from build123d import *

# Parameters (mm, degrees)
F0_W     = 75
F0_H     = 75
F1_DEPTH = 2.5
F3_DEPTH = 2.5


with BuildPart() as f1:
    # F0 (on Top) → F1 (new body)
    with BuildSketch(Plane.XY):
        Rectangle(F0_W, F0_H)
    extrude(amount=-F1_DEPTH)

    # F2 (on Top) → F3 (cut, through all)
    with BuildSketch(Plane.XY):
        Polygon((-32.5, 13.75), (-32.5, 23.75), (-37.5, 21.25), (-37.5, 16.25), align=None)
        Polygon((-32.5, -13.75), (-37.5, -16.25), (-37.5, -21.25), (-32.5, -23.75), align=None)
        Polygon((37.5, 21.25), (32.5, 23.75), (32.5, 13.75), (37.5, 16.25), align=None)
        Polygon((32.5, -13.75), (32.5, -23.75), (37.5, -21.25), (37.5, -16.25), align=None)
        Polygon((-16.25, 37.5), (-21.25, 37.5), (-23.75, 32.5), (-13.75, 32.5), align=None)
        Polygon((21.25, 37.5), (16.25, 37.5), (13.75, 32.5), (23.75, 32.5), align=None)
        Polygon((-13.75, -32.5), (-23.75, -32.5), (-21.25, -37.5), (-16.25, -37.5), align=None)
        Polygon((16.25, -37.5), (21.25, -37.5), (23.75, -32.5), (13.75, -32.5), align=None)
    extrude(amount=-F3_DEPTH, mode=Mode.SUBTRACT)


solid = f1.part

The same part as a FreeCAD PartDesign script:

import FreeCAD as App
import Part
import Sketcher


def add_polygon(sketch, points):
    """Adds a closed chain of lines whose ends are joined by coincident constraints."""
    first, n = sketch.GeometryCount, len(points)
    for a, b in zip(points, points[1:] + points[:1]):
        sketch.addGeometry(Part.LineSegment(App.Vector(*a, 0), App.Vector(*b, 0)), False)
    for i in range(n):
        sketch.addConstraint(Sketcher.Constraint("Coincident", first + i, 2, first + (i + 1) % n, 1))

doc = App.newDocument("Part")
params = doc.addObject("Spreadsheet::Sheet", "Params")
for row, (alias, value) in enumerate([
    ("sketch1_width", "75 mm"),
    ("pad1_length", "2.5 mm"),
    ("sketch2_width", "5 mm"),
    ("sketch2_width2", "10 mm"),
], start=1):
    params.set(f"A{row}", alias)
    params.set(f"B{row}", "=" + value)
    params.setAlias(f"B{row}", alias)

body = doc.addObject("PartDesign::Body", "Body")

# Sketch on XY plane
sketch1 = doc.addObject("Sketcher::SketchObject", "Sketch")
body.addObject(sketch1)
sketch1.AttachmentSupport = (doc.XY_Plane, [""])
sketch1.MapMode = "FlatFace"
add_polygon(sketch1, [(-38, 38), (-38, -38), (38, -38), (38, 38)])  # lines 0-3
sketch1.addConstraint([
    Sketcher.Constraint("Vertical", 0),
    Sketcher.Constraint("Horizontal", 1),
    Sketcher.Constraint("Vertical", 2),
    Sketcher.Constraint("Horizontal", 3),
    Sketcher.Constraint("Symmetric", 0, 2, 2, 2, -1, 1),
    Sketcher.Constraint("Equal", 3, 0),
    Sketcher.Constraint("DistanceX", 1, 1, 1, 2, 75.0),
])
sketch1.setExpression("Constraints[10]", "Params.sketch1_width")
pad1 = doc.addObject("PartDesign::Pad", "Pad")
body.addObject(pad1)
pad1.Profile = sketch1
pad1.setExpression("Length", "Params.pad1_length")
pad1.Reversed = True

# Sketch on XY plane
sketch2 = doc.addObject("Sketcher::SketchObject", "Sketch001")
body.addObject(sketch2)
sketch2.AttachmentSupport = (doc.XY_Plane, [""])
sketch2.MapMode = "FlatFace"
add_polygon(sketch2, [(-32, 14), (-32, 24), (-38, 21), (-38, 16)])  # lines 0-3
add_polygon(sketch2, [(-32, -14), (-38, -16), (-38, -21), (-32, -24)])  # lines 4-7
add_polygon(sketch2, [(38, 21), (32, 24), (32, 14), (38, 16)])  # lines 8-11
add_polygon(sketch2, [(32, -14), (32, -24), (38, -21), (38, -16)])  # lines 12-15
add_polygon(sketch2, [(-16, 38), (-21, 38), (-24, 32), (-14, 32)])  # lines 16-19
add_polygon(sketch2, [(21, 38), (16, 38), (14, 32), (24, 32)])  # lines 20-23
add_polygon(sketch2, [(-14, -32), (-24, -32), (-21, -38), (-16, -38)])  # lines 24-27
add_polygon(sketch2, [(16, -38), (21, -38), (24, -32), (14, -32)])  # lines 28-31
sketch2.addConstraint([
    Sketcher.Constraint("Vertical", 0),
    Sketcher.Constraint("Vertical", 2),
    Sketcher.Constraint("Vertical", 5),
    Sketcher.Constraint("Vertical", 7),
    Sketcher.Constraint("Vertical", 9),
    Sketcher.Constraint("Vertical", 11),
    Sketcher.Constraint("Vertical", 12),
    Sketcher.Constraint("Vertical", 14),
    Sketcher.Constraint("Horizontal", 16),
    Sketcher.Constraint("Horizontal", 18),
    Sketcher.Constraint("Horizontal", 20),
    Sketcher.Constraint("Horizontal", 22),
    Sketcher.Constraint("Horizontal", 24),
    Sketcher.Constraint("Horizontal", 26),
    Sketcher.Constraint("Horizontal", 28),
    Sketcher.Constraint("Horizontal", 30),
    Sketcher.Constraint("Symmetric", 6, 2, 8, 2, -1, 1),
    Sketcher.Constraint("Symmetric", 4, 2, 10, 2, -1, 1),
    Sketcher.Constraint("Symmetric", 0, 2, 12, 2, -1, 1),
    Sketcher.Constraint("Symmetric", 1, 2, 13, 2, -1, 1),
    Sketcher.Constraint("Symmetric", 22, 2, 24, 2, -1, 1),
    Sketcher.Constraint("Symmetric", 23, 2, 25, 2, -1, 1),
    Sketcher.Constraint("Symmetric", 16, 2, 28, 2, -1, 1),
    Sketcher.Constraint("Symmetric", 17, 2, 29, 2, -1, 1),
    Sketcher.Constraint("Symmetric", 0, 2, 8, 2, -2),
    Sketcher.Constraint("Symmetric", 2, 2, 10, 2, -2),
    Sketcher.Constraint("Symmetric", 19, 2, 20, 2, -2),
    Sketcher.Constraint("Symmetric", 18, 2, 21, 2, -2),
    Sketcher.Constraint("Parallel", 1, 4),
    Sketcher.Constraint("Parallel", 3, 6),
    Sketcher.Constraint("Parallel", 6, 8),
    Sketcher.Constraint("Parallel", 4, 10),
    Sketcher.Constraint("Parallel", 8, 15),
    Sketcher.Constraint("Perpendicular", 15, 17),
    Sketcher.Constraint("Perpendicular", 13, 19),
    Sketcher.Constraint("Parallel", 17, 21),
    Sketcher.Constraint("Parallel", 19, 23),
    Sketcher.Constraint("Parallel", 21, 27),
    Sketcher.Constraint("Parallel", 25, 31),
    Sketcher.Constraint("Horizontal", 4, 2, 14, 2),
    Sketcher.Constraint("Vertical", 17, 2, 24, 2),
    Sketcher.Constraint("Vertical", 19, 2, 26, 2),
    Sketcher.Constraint("Vertical", 21, 2, 30, 2),
    Sketcher.Constraint("Equal", 30, 0),
    Sketcher.Constraint("Equal", 28, 2),
    Sketcher.Constraint("DistanceX", 16, 2, 16, 1, 5.0),
    Sketcher.Constraint("DistanceX", 18, 1, 18, 2, 10.0),
    Sketcher.Constraint("DistanceX", 1, 2, 0, 2, 5.0),
    Sketcher.Constraint("DistanceY", 4, 2, 3, 2, 30.0),
    Sketcher.Constraint("DistanceX", 0, 2, 8, 2, 65.0),
    Sketcher.Constraint("DistanceX", 18, 2, 20, 2, 30.0),
    Sketcher.Constraint("DistanceY", -1, 1, 16, 2, 37.5),
])
sketch2.setExpression("Constraints[77]", "Params.sketch2_width")
sketch2.setExpression("Constraints[78]", "Params.sketch2_width2")
pocket1 = doc.addObject("PartDesign::Pocket", "Pocket")
body.addObject(pocket1)
pocket1.Profile = sketch2
pocket1.Type = "ThroughAll"

doc.recompute()
